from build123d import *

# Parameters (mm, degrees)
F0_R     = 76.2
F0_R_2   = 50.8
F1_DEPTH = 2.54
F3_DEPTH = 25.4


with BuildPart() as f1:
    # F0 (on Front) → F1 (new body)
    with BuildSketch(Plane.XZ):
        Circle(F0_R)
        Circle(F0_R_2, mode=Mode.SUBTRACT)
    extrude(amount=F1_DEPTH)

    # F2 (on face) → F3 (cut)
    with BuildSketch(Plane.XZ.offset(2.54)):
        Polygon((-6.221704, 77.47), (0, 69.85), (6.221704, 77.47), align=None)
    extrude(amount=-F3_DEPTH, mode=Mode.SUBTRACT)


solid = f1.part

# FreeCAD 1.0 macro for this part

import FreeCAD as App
import Part
import Sketcher

V = App.Vector
Q = App.Units.Quantity


def add_polygon(sketch, points):
    """Adds a closed chain of lines whose ends are joined by coincident constraints."""
    first, n = sketch.GeometryCount, len(points)
    for a, b in zip(points, points[1:] + points[:1]):
        sketch.addGeometry(Part.LineSegment(App.Vector(*a, 0), App.Vector(*b, 0)), False)
    for i in range(n):
        sketch.addConstraint(Sketcher.Constraint("Coincident", first + i, 2, first + (i + 1) % n, 1))

doc = App.newDocument("Part")
params = doc.addObject("Spreadsheet::Sheet", "Params")
for row, (alias, value) in enumerate([
    ("sketch1_diameter", "6 in"),
    ("sketch1_diameter2", "4 in"),
    ("pad1_length", "0.1 in"),
    ("pocket1_length", "1 in"),
], start=1):
    params.set(f"A{row}", alias)
    params.set(f"B{row}", "=" + value)
    params.setAlias(f"B{row}", alias)

body = doc.addObject("PartDesign::Body", "Body")

sketch1 = body.newObject("Sketcher::SketchObject", "Sketch")
sketch1.AttachmentSupport = (doc.getObject("XZ_Plane"), [""])
sketch1.MapMode = "FlatFace"
sketch1.addGeometry([
    Part.Circle(V(0, 0, 0), V(0, 0, 1), 76),
    Part.Circle(V(0, 0, 0), V(0, 0, 1), 51),
], False)
sketch1.addConstraint([
    Sketcher.Constraint("Coincident", 0, 3, -1, 1),
    Sketcher.Constraint("Coincident", 1, 3, -1, 1),
    Sketcher.Constraint("Diameter", 0, Q("6 in")),
    Sketcher.Constraint("Diameter", 1, Q("4 in")),
])
sketch1.setExpression("Constraints[2]", "Params.sketch1_diameter")
sketch1.setExpression("Constraints[3]", "Params.sketch1_diameter2")
pad1 = body.newObject("PartDesign::Pad", "Pad")
pad1.Profile = sketch1
pad1.setExpression("Length", "Params.pad1_length")

sketch2 = body.newObject("Sketcher::SketchObject", "Sketch001")
sketch2.AttachmentSupport = (doc.getObject("XZ_Plane"), [""])
sketch2.MapMode = "FlatFace"
sketch2.AttachmentOffset = App.Placement(V(0, 0, 0.1 * 25.4), App.Rotation())
add_polygon(sketch2, [(-6, 77), (0, 70), (6, 77)])
sketch2.addConstraint([
    Sketcher.Constraint("Horizontal", 2),
    Sketcher.Constraint("PointOnObject", 0, 2, -2),
    Sketcher.Constraint("Equal", 0, 1),
    Sketcher.Constraint("DistanceY", 0, 2, 1, 2, Q("0.3 in")),
    Sketcher.Constraint("DistanceY", -1, 1, 0, 2, Q("2.75 in")),
    Sketcher.Constraint("DistanceX", 2, 2, 2, 1, 12.443408),
])
pocket1 = body.newObject("PartDesign::Pocket", "Pocket")
pocket1.Profile = sketch2
pocket1.setExpression("Length", "Params.pocket1_length")

doc.recompute()
